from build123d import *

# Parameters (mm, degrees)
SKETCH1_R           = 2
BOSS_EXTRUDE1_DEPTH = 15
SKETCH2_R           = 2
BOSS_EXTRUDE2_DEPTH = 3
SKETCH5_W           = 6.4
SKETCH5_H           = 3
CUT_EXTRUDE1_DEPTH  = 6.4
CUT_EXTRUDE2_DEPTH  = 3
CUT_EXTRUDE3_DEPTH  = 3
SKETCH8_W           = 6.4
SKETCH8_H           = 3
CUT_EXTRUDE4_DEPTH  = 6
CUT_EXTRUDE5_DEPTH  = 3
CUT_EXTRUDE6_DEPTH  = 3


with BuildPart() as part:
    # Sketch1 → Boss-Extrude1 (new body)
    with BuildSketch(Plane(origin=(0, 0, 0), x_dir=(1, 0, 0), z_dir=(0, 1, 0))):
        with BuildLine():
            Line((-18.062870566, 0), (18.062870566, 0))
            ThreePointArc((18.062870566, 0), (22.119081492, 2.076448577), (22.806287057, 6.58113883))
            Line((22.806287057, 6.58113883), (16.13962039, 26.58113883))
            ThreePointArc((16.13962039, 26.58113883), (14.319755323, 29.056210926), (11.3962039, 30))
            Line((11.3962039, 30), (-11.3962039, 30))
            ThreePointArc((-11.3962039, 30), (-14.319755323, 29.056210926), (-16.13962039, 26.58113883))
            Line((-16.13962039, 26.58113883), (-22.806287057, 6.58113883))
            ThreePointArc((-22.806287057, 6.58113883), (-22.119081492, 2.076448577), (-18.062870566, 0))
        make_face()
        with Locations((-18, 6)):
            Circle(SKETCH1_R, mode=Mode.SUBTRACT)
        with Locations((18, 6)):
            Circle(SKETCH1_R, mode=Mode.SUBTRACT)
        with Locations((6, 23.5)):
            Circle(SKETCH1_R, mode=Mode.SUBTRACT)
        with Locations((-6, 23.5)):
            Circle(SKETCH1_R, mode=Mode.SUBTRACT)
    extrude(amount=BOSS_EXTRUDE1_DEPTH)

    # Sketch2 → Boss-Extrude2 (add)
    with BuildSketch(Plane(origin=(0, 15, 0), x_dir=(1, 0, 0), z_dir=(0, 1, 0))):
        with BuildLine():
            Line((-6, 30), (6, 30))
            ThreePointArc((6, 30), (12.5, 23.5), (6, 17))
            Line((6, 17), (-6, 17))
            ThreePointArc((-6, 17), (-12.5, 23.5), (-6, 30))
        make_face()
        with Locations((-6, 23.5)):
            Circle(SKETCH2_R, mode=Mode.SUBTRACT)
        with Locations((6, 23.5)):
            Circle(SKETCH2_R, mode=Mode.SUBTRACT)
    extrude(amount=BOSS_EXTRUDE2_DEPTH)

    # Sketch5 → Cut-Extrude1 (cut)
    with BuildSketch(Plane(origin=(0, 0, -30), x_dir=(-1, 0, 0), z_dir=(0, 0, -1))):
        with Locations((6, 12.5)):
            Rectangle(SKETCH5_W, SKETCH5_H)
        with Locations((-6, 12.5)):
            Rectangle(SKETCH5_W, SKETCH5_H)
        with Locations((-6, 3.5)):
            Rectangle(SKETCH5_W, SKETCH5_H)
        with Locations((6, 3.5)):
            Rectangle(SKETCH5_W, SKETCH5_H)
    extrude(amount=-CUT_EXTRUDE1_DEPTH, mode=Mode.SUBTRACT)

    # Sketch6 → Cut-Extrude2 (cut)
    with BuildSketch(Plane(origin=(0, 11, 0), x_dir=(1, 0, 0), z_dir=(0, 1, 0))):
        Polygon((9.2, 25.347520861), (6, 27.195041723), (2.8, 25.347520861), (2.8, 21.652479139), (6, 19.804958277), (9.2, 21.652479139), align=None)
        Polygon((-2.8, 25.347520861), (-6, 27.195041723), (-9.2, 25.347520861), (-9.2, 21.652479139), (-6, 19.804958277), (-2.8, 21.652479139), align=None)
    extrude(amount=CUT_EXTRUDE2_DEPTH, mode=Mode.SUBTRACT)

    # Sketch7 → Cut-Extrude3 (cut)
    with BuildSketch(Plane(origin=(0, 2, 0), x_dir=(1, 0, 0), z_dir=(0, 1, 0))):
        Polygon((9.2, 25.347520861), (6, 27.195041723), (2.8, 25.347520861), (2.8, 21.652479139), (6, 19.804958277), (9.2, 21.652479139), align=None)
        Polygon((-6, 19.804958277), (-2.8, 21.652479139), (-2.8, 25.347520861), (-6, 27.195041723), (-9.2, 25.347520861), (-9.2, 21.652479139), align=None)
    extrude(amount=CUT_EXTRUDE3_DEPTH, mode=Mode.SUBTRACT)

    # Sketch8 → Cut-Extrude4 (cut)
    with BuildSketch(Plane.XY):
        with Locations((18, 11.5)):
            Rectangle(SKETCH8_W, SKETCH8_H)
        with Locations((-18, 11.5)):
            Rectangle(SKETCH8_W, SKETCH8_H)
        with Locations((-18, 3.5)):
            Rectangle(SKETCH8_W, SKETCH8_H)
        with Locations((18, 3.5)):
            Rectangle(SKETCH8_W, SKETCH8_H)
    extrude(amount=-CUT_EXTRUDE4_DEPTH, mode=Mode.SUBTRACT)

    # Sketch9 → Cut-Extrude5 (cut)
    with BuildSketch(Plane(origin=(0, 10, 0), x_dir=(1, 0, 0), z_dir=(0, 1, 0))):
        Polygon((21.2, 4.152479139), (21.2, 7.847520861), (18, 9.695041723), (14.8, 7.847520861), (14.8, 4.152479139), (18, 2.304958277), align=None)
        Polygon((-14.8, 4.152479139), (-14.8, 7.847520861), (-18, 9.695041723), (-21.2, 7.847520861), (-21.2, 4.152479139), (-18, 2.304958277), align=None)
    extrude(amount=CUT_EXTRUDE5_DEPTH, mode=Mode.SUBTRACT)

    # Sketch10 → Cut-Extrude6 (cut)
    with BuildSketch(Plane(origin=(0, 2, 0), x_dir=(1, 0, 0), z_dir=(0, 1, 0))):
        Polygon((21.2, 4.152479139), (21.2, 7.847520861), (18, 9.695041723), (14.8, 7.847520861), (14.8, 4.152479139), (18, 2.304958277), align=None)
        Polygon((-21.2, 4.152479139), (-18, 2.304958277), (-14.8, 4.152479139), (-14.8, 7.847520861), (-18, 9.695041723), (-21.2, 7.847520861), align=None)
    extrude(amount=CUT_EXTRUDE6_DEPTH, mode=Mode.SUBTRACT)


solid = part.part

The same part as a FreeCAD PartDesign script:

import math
import FreeCAD as App
import Part
import Sketcher
from FreeCAD import Vector
Q = App.Units.Quantity


def add_polygon(sketch, points):
    """Adds a closed chain of lines whose ends are joined by coincident constraints."""
    first, n = sketch.GeometryCount, len(points)
    for a, b in zip(points, points[1:] + points[:1]):
        sketch.addGeometry(Part.LineSegment(App.Vector(*a, 0), App.Vector(*b, 0)), False)
    for i in range(n):
        sketch.addConstraint(Sketcher.Constraint("Coincident", first + i, 2, first + (i + 1) % n, 1))

doc = App.newDocument("Part")
params = doc.addObject("Spreadsheet::Sheet", "Params")
for row, (alias, value) in enumerate([
    ("sketch1_diameter", "4 mm"),
    ("sketch1_radius", "5 mm"),
    ("pad1_length", "15 mm"),
    ("sketch2_diameter", "4 mm"),
    ("sketch2_radius", "6.5 mm"),
    ("sketch2_width", "12 mm"),
    ("pad2_length", "3 mm"),
    ("sketch3_height", "3 mm"),
    ("sketch3_width", "6.4 mm"),
    ("pocket1_length", "6.4 mm"),
    ("pocket2_length", "3 mm"),
    ("pocket3_length", "3 mm"),
    ("sketch6_height", "3 mm"),
    ("sketch6_width", "6.4 mm"),
    ("pocket4_length", "6 mm"),
    ("pocket5_length", "3 mm"),
    ("pocket6_length", "3 mm"),
], start=1):
    params.set(f"A{row}", alias)
    params.set(f"B{row}", "=" + value)
    params.setAlias(f"B{row}", alias)

body = doc.addObject("PartDesign::Body", "Body")

# Sketch on XZ plane
sketch1 = body.newObject("Sketcher::SketchObject", "Sketch")
sketch1.AttachmentSupport = (doc.getObject("XZ_Plane"), [""])
sketch1.MapMode = "FlatFace"
sketch1.addGeometry(Part.LineSegment(Vector(-18.1, 0, 0), Vector(18.1, 0, 0)), False)
sketch1.addGeometry(Part.ArcOfCircle(Part.Circle(Vector(18.1, -5, 0), Vector(0, 0, 1), 5), math.radians(-18), math.radians(90)), False)
sketch1.addGeometry(Part.LineSegment(Vector(22.8, -6.6, 0), Vector(16.1, -26.6, 0)), False)
sketch1.addGeometry(Part.ArcOfCircle(Part.Circle(Vector(11.4, -25, 0), Vector(0, 0, 1), 5), math.radians(-90), math.radians(-18)), False)
sketch1.addGeometry(Part.LineSegment(Vector(11.4, -30, 0), Vector(-11.4, -30, 0)), False)
sketch1.addGeometry(Part.ArcOfCircle(Part.Circle(Vector(-11.4, -25, 0), Vector(0, 0, 1), 5), math.radians(-162), math.radians(-90)), False)
sketch1.addGeometry(Part.LineSegment(Vector(-16.1, -26.6, 0), Vector(-22.8, -6.6, 0)), False)
sketch1.addGeometry(Part.ArcOfCircle(Part.Circle(Vector(-18.1, -5, 0), Vector(0, 0, 1), 5), math.radians(90), math.radians(198)), False)
sketch1.addGeometry(Part.Circle(Vector(-18, -6, 0), Vector(0, 0, 1), 2), False)
sketch1.addGeometry(Part.Circle(Vector(18, -6, 0), Vector(0, 0, 1), 2), False)
sketch1.addGeometry(Part.Circle(Vector(-6, -23.5, 0), Vector(0, 0, 1), 2), False)
sketch1.addGeometry(Part.Circle(Vector(6, -23.5, 0), Vector(0, 0, 1), 2), False)
sketch1.addConstraint(Sketcher.Constraint("Tangent", 0, 2, 1, 2))
sketch1.addConstraint(Sketcher.Constraint("Tangent", 1, 1, 2, 1))
sketch1.addConstraint(Sketcher.Constraint("Tangent", 2, 2, 3, 2))
sketch1.addConstraint(Sketcher.Constraint("Tangent", 3, 1, 4, 1))
sketch1.addConstraint(Sketcher.Constraint("Tangent", 4, 2, 5, 2))
sketch1.addConstraint(Sketcher.Constraint("Tangent", 5, 1, 6, 1))
sketch1.addConstraint(Sketcher.Constraint("Tangent", 6, 2, 7, 2))
sketch1.addConstraint(Sketcher.Constraint("Tangent", 7, 1, 0, 1))
sketch1.addConstraint(Sketcher.Constraint("Horizontal", 0))
sketch1.addConstraint(Sketcher.Constraint("Horizontal", 4))
sketch1.addConstraint(Sketcher.Constraint("Equal", 1, 3))
sketch1.addConstraint(Sketcher.Constraint("Equal", 3, 5))
sketch1.addConstraint(Sketcher.Constraint("Equal", 5, 7))
sketch1.addConstraint(Sketcher.Constraint("Equal", 8, 9))
sketch1.addConstraint(Sketcher.Constraint("Equal", 9, 10))
sketch1.addConstraint(Sketcher.Constraint("Equal", 10, 11))
sketch1.addConstraint(Sketcher.Constraint("Symmetric", 0, 2, 7, 1, -1, 1))
sketch1.addConstraint(Sketcher.Constraint("Symmetric", 8, 3, 9, 3, -2))
sketch1.addConstraint(Sketcher.Constraint("Symmetric", 10, 3, 11, 3, -2))
sketch1.addConstraint(Sketcher.Constraint("Horizontal", 2, 2, 5, 1))
sketch1.addConstraint(Sketcher.Constraint("Diameter", 8, 4.0))
sketch1.addConstraint(Sketcher.Constraint("Radius", 1, 5.0))
sketch1.addConstraint(Sketcher.Constraint("DistanceY", 3, 3, -1, 1, 25.0))
sketch1.addConstraint(Sketcher.Constraint("DistanceX", 8, 3, -1, 1, 18.0))
sketch1.addConstraint(Sketcher.Constraint("DistanceY", 8, 3, -1, 1, 6.0))
sketch1.addConstraint(Sketcher.Constraint("DistanceX", 10, 3, -1, 1, 6.0))
sketch1.addConstraint(Sketcher.Constraint("DistanceY", 10, 3, -1, 1, 23.5))
sketch1.addConstraint(Sketcher.Constraint("DistanceX", 0, 1, 0, 2, 36.125741))
sketch1.addConstraint(Sketcher.Constraint("Distance", 2, 21.081851))
sketch1.setExpression("Constraints[20]", "Params.sketch1_diameter")
sketch1.setExpression("Constraints[21]", "Params.sketch1_radius")
pad1 = body.newObject("PartDesign::Pad", "Pad")
pad1.Profile = sketch1
pad1.setExpression("Length", "Params.pad1_length")
pad1.Reversed = True

# Sketch on XZ plane
sketch2 = body.newObject("Sketcher::SketchObject", "Sketch001")
sketch2.AttachmentSupport = (doc.getObject("XZ_Plane"), [""])
sketch2.MapMode = "FlatFace"
sketch2.AttachmentOffset = App.Placement(Vector(0, 0, -15), App.Rotation())
sketch2.addGeometry(Part.LineSegment(Vector(6, -30, 0), Vector(-6, -30, 0)), False)
sketch2.addGeometry(Part.ArcOfCircle(Part.Circle(Vector(-6, -23.5, 0), Vector(0, 0, 1), 6.5), math.radians(90), math.radians(270)), False)
sketch2.addGeometry(Part.LineSegment(Vector(-6, -17, 0), Vector(6, -17, 0)), False)
sketch2.addGeometry(Part.ArcOfCircle(Part.Circle(Vector(6, -23.5, 0), Vector(0, 0, 1), 6.5), math.radians(-90), math.radians(90)), False)
sketch2.addGeometry(Part.Circle(Vector(6, -23.5, 0), Vector(0, 0, 1), 2), False)
sketch2.addGeometry(Part.Circle(Vector(-6, -23.5, 0), Vector(0, 0, 1), 2), False)
sketch2.addConstraint(Sketcher.Constraint("Tangent", 0, 2, 1, 2))
sketch2.addConstraint(Sketcher.Constraint("Tangent", 1, 1, 2, 1))
sketch2.addConstraint(Sketcher.Constraint("Tangent", 2, 2, 3, 2))
sketch2.addConstraint(Sketcher.Constraint("Tangent", 3, 1, 0, 1))
sketch2.addConstraint(Sketcher.Constraint("Horizontal", 0))
sketch2.addConstraint(Sketcher.Constraint("Horizontal", 2))
sketch2.addConstraint(Sketcher.Constraint("Coincident", 4, 3, 3, 3))
sketch2.addConstraint(Sketcher.Constraint("Coincident", 5, 3, 1, 3))
sketch2.addConstraint(Sketcher.Constraint("Equal", 4, 5))
sketch2.addConstraint(Sketcher.Constraint("Diameter", 4, 4.0))
sketch2.addConstraint(Sketcher.Constraint("Radius", 1, 6.5))
sketch2.addConstraint(Sketcher.Constraint("DistanceX", 0, 2, 0, 1, 12.0))
sketch2.addConstraint(Sketcher.Constraint("DistanceX", 1, 3, -1, 1, 6.0))
sketch2.addConstraint(Sketcher.Constraint("DistanceY", 0, 2, -1, 1, 30.0))
sketch2.setExpression("Constraints[9]", "Params.sketch2_diameter")
sketch2.setExpression("Constraints[10]", "Params.sketch2_radius")
sketch2.setExpression("Constraints[11]", "Params.sketch2_width")
pad2 = body.newObject("PartDesign::Pad", "Pad001")
pad2.Profile = sketch2
pad2.setExpression("Length", "Params.pad2_length")
pad2.Reversed = True

# Sketch on XY plane
sketch3 = body.newObject("Sketcher::SketchObject", "Sketch002")
sketch3.AttachmentSupport = (doc.getObject("XY_Plane"), [""])
sketch3.MapMode = "FlatFace"
sketch3.AttachmentOffset = App.Placement(Vector(0, 0, -30), App.Rotation())
add_polygon(sketch3, [(-2.8, 14), (-2.8, 11), (-9.2, 11), (-9.2, 14)])  # lines 0-3
add_polygon(sketch3, [(9.2, 14), (9.2, 11), (2.8, 11), (2.8, 14)])  # lines 4-7
add_polygon(sketch3, [(9.2, 5), (9.2, 2), (2.8, 2), (2.8, 5)])  # lines 8-11
add_polygon(sketch3, [(-2.8, 5), (-2.8, 2), (-9.2, 2), (-9.2, 5)])  # lines 12-15
sketch3.addConstraint(Sketcher.Constraint("Vertical", 0))
sketch3.addConstraint(Sketcher.Constraint("Horizontal", 1))
sketch3.addConstraint(Sketcher.Constraint("Vertical", 2))
sketch3.addConstraint(Sketcher.Constraint("Horizontal", 3))
sketch3.addConstraint(Sketcher.Constraint("Vertical", 4))
sketch3.addConstraint(Sketcher.Constraint("Horizontal", 5))
sketch3.addConstraint(Sketcher.Constraint("Vertical", 6))
sketch3.addConstraint(Sketcher.Constraint("Horizontal", 7))
sketch3.addConstraint(Sketcher.Constraint("Vertical", 8))
sketch3.addConstraint(Sketcher.Constraint("Horizontal", 9))
sketch3.addConstraint(Sketcher.Constraint("Vertical", 10))
sketch3.addConstraint(Sketcher.Constraint("Horizontal", 11))
sketch3.addConstraint(Sketcher.Constraint("Vertical", 12))
sketch3.addConstraint(Sketcher.Constraint("Horizontal", 13))
sketch3.addConstraint(Sketcher.Constraint("Vertical", 14))
sketch3.addConstraint(Sketcher.Constraint("Horizontal", 15))
sketch3.addConstraint(Sketcher.Constraint("Symmetric", 1, 2, 4, 2, -2))
sketch3.addConstraint(Sketcher.Constraint("Symmetric", 3, 2, 6, 2, -2))
sketch3.addConstraint(Sketcher.Constraint("Symmetric", 9, 2, 12, 2, -2))
sketch3.addConstraint(Sketcher.Constraint("Symmetric", 11, 2, 14, 2, -2))
sketch3.addConstraint(Sketcher.Constraint("Vertical", 7, 2, 8, 2))
sketch3.addConstraint(Sketcher.Constraint("Vertical", 6, 2, 9, 2))
sketch3.addConstraint(Sketcher.Constraint("Equal", 6, 8))
sketch3.addConstraint(Sketcher.Constraint("DistanceY", 0, 2, 0, 1, 3.0))
sketch3.addConstraint(Sketcher.Constraint("DistanceX", 1, 2, 1, 1, 6.4))
sketch3.addConstraint(Sketcher.Constraint("DistanceY", -1, 1, 0, 2, 11.0))
sketch3.addConstraint(Sketcher.Constraint("DistanceY", -1, 1, 8, 2, 2.0))
sketch3.addConstraint(Sketcher.Constraint("DistanceX", 0, 2, 4, 2, 12.0))
sketch3.setExpression("Constraints[39]", "Params.sketch3_height")
sketch3.setExpression("Constraints[40]", "Params.sketch3_width")
pocket1 = body.newObject("PartDesign::Pocket", "Pocket")
pocket1.Profile = sketch3
pocket1.setExpression("Length", "Params.pocket1_length")
pocket1.Reversed = True

# Sketch on XZ plane
sketch4 = body.newObject("Sketcher::SketchObject", "Sketch003")
sketch4.AttachmentSupport = (doc.getObject("XZ_Plane"), [""])
sketch4.MapMode = "FlatFace"
sketch4.AttachmentOffset = App.Placement(Vector(0, 0, -11), App.Rotation())
add_polygon(sketch4, [(9.2, -25.3), (6, -27.2), (2.8, -25.3), (2.8, -21.7), (6, -19.8), (9.2, -21.7)])  # lines 0-5
add_polygon(sketch4, [(-2.8, -25.3), (-6, -27.2), (-9.2, -25.3), (-9.2, -21.7), (-6, -19.8), (-2.8, -21.7)])  # lines 6-11
sketch4.addConstraint(Sketcher.Constraint("Vertical", 2))
sketch4.addConstraint(Sketcher.Constraint("Vertical", 5))
sketch4.addConstraint(Sketcher.Constraint("Vertical", 8))
sketch4.addConstraint(Sketcher.Constraint("Vertical", 11))
sketch4.addConstraint(Sketcher.Constraint("Symmetric", 0, 2, 6, 2, -2))
sketch4.addConstraint(Sketcher.Constraint("Symmetric", 5, 2, 7, 2, -2))
sketch4.addConstraint(Sketcher.Constraint("Symmetric", 3, 2, 9, 2, -2))
sketch4.addConstraint(Sketcher.Constraint("Symmetric", 2, 2, 10, 2, -2))
sketch4.addConstraint(Sketcher.Constraint("Parallel", 0, 3))
sketch4.addConstraint(Sketcher.Constraint("Parallel", 1, 4))
sketch4.addConstraint(Sketcher.Constraint("Parallel", 3, 6))
sketch4.addConstraint(Sketcher.Constraint("Parallel", 4, 7))
sketch4.addConstraint(Sketcher.Constraint("Parallel", 6, 9))
sketch4.addConstraint(Sketcher.Constraint("Horizontal", 2, 2, 4, 2))
sketch4.addConstraint(Sketcher.Constraint("Horizontal", 1, 2, 5, 2))
sketch4.addConstraint(Sketcher.Constraint("Angle", 0, Q("-150 deg")))
sketch4.addConstraint(Sketcher.Constraint("DistanceX", -1, 1, 0, 2, 6.0))
sketch4.addConstraint(Sketcher.Constraint("DistanceX", -1, 1, 1, 2, 2.8))
sketch4.addConstraint(Sketcher.Constraint("DistanceY", 2, 1, 2, 2, 3.695042))
sketch4.addConstraint(Sketcher.Constraint("DistanceY", 0, 2, -1, 1, 27.195042))
pocket2 = body.newObject("PartDesign::Pocket", "Pocket001")
pocket2.Profile = sketch4
pocket2.setExpression("Length", "Params.pocket2_length")

# Sketch on XZ plane
sketch5 = body.newObject("Sketcher::SketchObject", "Sketch004")
sketch5.AttachmentSupport = (doc.getObject("XZ_Plane"), [""])
sketch5.MapMode = "FlatFace"
sketch5.AttachmentOffset = App.Placement(Vector(0, 0, -2), App.Rotation())
add_polygon(sketch5, [(9.2, -25.3), (6, -27.2), (2.8, -25.3), (2.8, -21.7), (6, -19.8), (9.2, -21.7)])  # lines 0-5
add_polygon(sketch5, [(-6, -19.8), (-2.8, -21.7), (-2.8, -25.3), (-6, -27.2), (-9.2, -25.3), (-9.2, -21.7)])  # lines 6-11
sketch5.addConstraint(Sketcher.Constraint("Vertical", 2))
sketch5.addConstraint(Sketcher.Constraint("Vertical", 5))
sketch5.addConstraint(Sketcher.Constraint("Vertical", 7))
sketch5.addConstraint(Sketcher.Constraint("Vertical", 10))
sketch5.addConstraint(Sketcher.Constraint("Symmetric", 2, 2, 6, 2, -2))
sketch5.addConstraint(Sketcher.Constraint("Symmetric", 0, 2, 8, 2, -2))
sketch5.addConstraint(Sketcher.Constraint("Symmetric", 5, 2, 9, 2, -2))
sketch5.addConstraint(Sketcher.Constraint("Symmetric", 3, 2, 11, 2, -2))
sketch5.addConstraint(Sketcher.Constraint("Parallel", 0, 3))
sketch5.addConstraint(Sketcher.Constraint("Parallel", 1, 4))
sketch5.addConstraint(Sketcher.Constraint("Parallel", 4, 6))
sketch5.addConstraint(Sketcher.Constraint("Parallel", 3, 8))
sketch5.addConstraint(Sketcher.Constraint("Parallel", 8, 11))
sketch5.addConstraint(Sketcher.Constraint("Horizontal", 2, 2, 4, 2))
sketch5.addConstraint(Sketcher.Constraint("Horizontal", 1, 2, 5, 2))
sketch5.addConstraint(Sketcher.Constraint("Angle", 0, Q("-150 deg")))
sketch5.addConstraint(Sketcher.Constraint("DistanceX", -1, 1, 0, 2, 6.0))
sketch5.addConstraint(Sketcher.Constraint("DistanceX", -1, 1, 1, 2, 2.8))
sketch5.addConstraint(Sketcher.Constraint("DistanceY", 2, 1, 2, 2, 3.695042))
sketch5.addConstraint(Sketcher.Constraint("DistanceY", 0, 2, -1, 1, 27.195042))
pocket3 = body.newObject("PartDesign::Pocket", "Pocket002")
pocket3.Profile = sketch5
pocket3.setExpression("Length", "Params.pocket3_length")

# Sketch on XY plane
sketch6 = body.newObject("Sketcher::SketchObject", "Sketch005")
sketch6.AttachmentSupport = (doc.getObject("XY_Plane"), [""])
sketch6.MapMode = "FlatFace"
add_polygon(sketch6, [(14.8, 13), (14.8, 10), (21.2, 10), (21.2, 13)])  # lines 0-3
add_polygon(sketch6, [(-21.2, 13), (-21.2, 10), (-14.8, 10), (-14.8, 13)])  # lines 4-7
add_polygon(sketch6, [(-21.2, 5), (-21.2, 2), (-14.8, 2), (-14.8, 5)])  # lines 8-11
add_polygon(sketch6, [(14.8, 5), (14.8, 2), (21.2, 2), (21.2, 5)])  # lines 12-15
sketch6.addConstraint(Sketcher.Constraint("Vertical", 0))
sketch6.addConstraint(Sketcher.Constraint("Horizontal", 1))
sketch6.addConstraint(Sketcher.Constraint("Vertical", 2))
sketch6.addConstraint(Sketcher.Constraint("Horizontal", 3))
sketch6.addConstraint(Sketcher.Constraint("Vertical", 4))
sketch6.addConstraint(Sketcher.Constraint("Horizontal", 5))
sketch6.addConstraint(Sketcher.Constraint("Vertical", 6))
sketch6.addConstraint(Sketcher.Constraint("Horizontal", 7))
sketch6.addConstraint(Sketcher.Constraint("Vertical", 8))
sketch6.addConstraint(Sketcher.Constraint("Horizontal", 9))
sketch6.addConstraint(Sketcher.Constraint("Vertical", 10))
sketch6.addConstraint(Sketcher.Constraint("Horizontal", 11))
sketch6.addConstraint(Sketcher.Constraint("Vertical", 12))
sketch6.addConstraint(Sketcher.Constraint("Horizontal", 13))
sketch6.addConstraint(Sketcher.Constraint("Vertical", 14))
sketch6.addConstraint(Sketcher.Constraint("Horizontal", 15))
sketch6.addConstraint(Sketcher.Constraint("Symmetric", 1, 2, 4, 2, -2))
sketch6.addConstraint(Sketcher.Constraint("Symmetric", 3, 2, 6, 2, -2))
sketch6.addConstraint(Sketcher.Constraint("Symmetric", 9, 2, 12, 2, -2))
sketch6.addConstraint(Sketcher.Constraint("Symmetric", 11, 2, 14, 2, -2))
sketch6.addConstraint(Sketcher.Constraint("Vertical", 7, 2, 8, 2))
sketch6.addConstraint(Sketcher.Constraint("Vertical", 6, 2, 9, 2))
sketch6.addConstraint(Sketcher.Constraint("Equal", 6, 8))
sketch6.addConstraint(Sketcher.Constraint("DistanceY", 0, 2, 0, 1, 3.0))
sketch6.addConstraint(Sketcher.Constraint("DistanceX", 1, 1, 1, 2, 6.4))
sketch6.addConstraint(Sketcher.Constraint("DistanceY", -1, 1, 0, 2, 10.0))
sketch6.addConstraint(Sketcher.Constraint("DistanceY", -1, 1, 8, 2, 2.0))
sketch6.addConstraint(Sketcher.Constraint("DistanceX", 4, 2, 0, 2, 36.0))
sketch6.setExpression("Constraints[39]", "Params.sketch6_height")
sketch6.setExpression("Constraints[40]", "Params.sketch6_width")
pocket4 = body.newObject("PartDesign::Pocket", "Pocket003")
pocket4.Profile = sketch6
pocket4.setExpression("Length", "Params.pocket4_length")

# Sketch on XZ plane
sketch7 = body.newObject("Sketcher::SketchObject", "Sketch006")
sketch7.AttachmentSupport = (doc.getObject("XZ_Plane"), [""])
sketch7.MapMode = "FlatFace"
sketch7.AttachmentOffset = App.Placement(Vector(0, 0, -10), App.Rotation())
add_polygon(sketch7, [(21.2, -4.2), (21.2, -7.8), (18, -9.7), (14.8, -7.8), (14.8, -4.2), (18, -2.3)])  # lines 0-5
add_polygon(sketch7, [(-14.8, -4.2), (-14.8, -7.8), (-18, -9.7), (-21.2, -7.8), (-21.2, -4.2), (-18, -2.3)])  # lines 6-11
sketch7.addConstraint(Sketcher.Constraint("Vertical", 0))
sketch7.addConstraint(Sketcher.Constraint("Vertical", 3))
sketch7.addConstraint(Sketcher.Constraint("Vertical", 6))
sketch7.addConstraint(Sketcher.Constraint("Vertical", 9))
sketch7.addConstraint(Sketcher.Constraint("Symmetric", 2, 2, 6, 2, -2))
sketch7.addConstraint(Sketcher.Constraint("Symmetric", 1, 2, 7, 2, -2))
sketch7.addConstraint(Sketcher.Constraint("Symmetric", 0, 2, 8, 2, -2))
sketch7.addConstraint(Sketcher.Constraint("Symmetric", 4, 2, 10, 2, -2))
sketch7.addConstraint(Sketcher.Constraint("Parallel", 1, 4))
sketch7.addConstraint(Sketcher.Constraint("Parallel", 2, 5))
sketch7.addConstraint(Sketcher.Constraint("Parallel", 4, 7))
sketch7.addConstraint(Sketcher.Constraint("Parallel", 7, 10))
sketch7.addConstraint(Sketcher.Constraint("Parallel", 8, 11))
sketch7.addConstraint(Sketcher.Constraint("Horizontal", 0, 2, 2, 2))
sketch7.addConstraint(Sketcher.Constraint("Horizontal", 3, 2, 5, 2))
sketch7.addConstraint(Sketcher.Constraint("Angle", 1, Q("-150 deg")))
sketch7.addConstraint(Sketcher.Constraint("DistanceX", -1, 1, 1, 2, 18.0))
sketch7.addConstraint(Sketcher.Constraint("DistanceX", -1, 1, 0, 2, 21.2))
sketch7.addConstraint(Sketcher.Constraint("DistanceY", 0, 2, 0, 1, 3.695042))
sketch7.addConstraint(Sketcher.Constraint("DistanceY", 0, 2, -1, 1, 7.847521))
pocket5 = body.newObject("PartDesign::Pocket", "Pocket004")
pocket5.Profile = sketch7
pocket5.setExpression("Length", "Params.pocket5_length")

# Sketch on XZ plane
sketch8 = body.newObject("Sketcher::SketchObject", "Sketch007")
sketch8.AttachmentSupport = (doc.getObject("XZ_Plane"), [""])
sketch8.MapMode = "FlatFace"
sketch8.AttachmentOffset = App.Placement(Vector(0, 0, -2), App.Rotation())
add_polygon(sketch8, [(21.2, -4.2), (21.2, -7.8), (18, -9.7), (14.8, -7.8), (14.8, -4.2), (18, -2.3)])  # lines 0-5
add_polygon(sketch8, [(-21.2, -4.2), (-18, -2.3), (-14.8, -4.2), (-14.8, -7.8), (-18, -9.7), (-21.2, -7.8)])  # lines 6-11
sketch8.addConstraint(Sketcher.Constraint("Vertical", 0))
sketch8.addConstraint(Sketcher.Constraint("Vertical", 3))
sketch8.addConstraint(Sketcher.Constraint("Vertical", 8))
sketch8.addConstraint(Sketcher.Constraint("Vertical", 11))
sketch8.addConstraint(Sketcher.Constraint("Symmetric", 4, 2, 6, 2, -2))
sketch8.addConstraint(Sketcher.Constraint("Symmetric", 3, 2, 7, 2, -2))
sketch8.addConstraint(Sketcher.Constraint("Symmetric", 1, 2, 9, 2, -2))
sketch8.addConstraint(Sketcher.Constraint("Symmetric", 0, 2, 10, 2, -2))
sketch8.addConstraint(Sketcher.Constraint("Parallel", 1, 4))
sketch8.addConstraint(Sketcher.Constraint("Parallel", 2, 5))
sketch8.addConstraint(Sketcher.Constraint("Parallel", 4, 6))
sketch8.addConstraint(Sketcher.Constraint("Parallel", 5, 7))
sketch8.addConstraint(Sketcher.Constraint("Parallel", 6, 9))
sketch8.addConstraint(Sketcher.Constraint("Horizontal", 0, 2, 2, 2))
sketch8.addConstraint(Sketcher.Constraint("Horizontal", 3, 2, 5, 2))
sketch8.addConstraint(Sketcher.Constraint("Angle", 1, Q("-150 deg")))
sketch8.addConstraint(Sketcher.Constraint("DistanceX", -1, 1, 1, 2, 18.0))
sketch8.addConstraint(Sketcher.Constraint("DistanceX", -1, 1, 0, 2, 21.2))
sketch8.addConstraint(Sketcher.Constraint("DistanceY", 0, 2, 0, 1, 3.695042))
sketch8.addConstraint(Sketcher.Constraint("DistanceY", 0, 2, -1, 1, 7.847521))
pocket6 = body.newObject("PartDesign::Pocket", "Pocket005")
pocket6.Profile = sketch8
pocket6.setExpression("Length", "Params.pocket6_length")

doc.recompute()
